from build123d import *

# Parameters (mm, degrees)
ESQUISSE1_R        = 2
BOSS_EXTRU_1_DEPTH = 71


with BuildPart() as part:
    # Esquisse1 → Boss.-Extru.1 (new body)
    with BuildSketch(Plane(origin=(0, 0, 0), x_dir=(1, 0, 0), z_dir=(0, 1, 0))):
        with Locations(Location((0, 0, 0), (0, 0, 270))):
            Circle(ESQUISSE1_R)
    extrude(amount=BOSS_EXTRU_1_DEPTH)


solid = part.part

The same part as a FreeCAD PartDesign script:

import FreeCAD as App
import Part
import Sketcher
Q = App.Units.Quantity

doc = App.newDocument("Part")
body = doc.addObject("PartDesign::Body", "Body")

sketch1 = body.newObject("Sketcher::SketchObject", "Sketch")
sketch1.AttachmentSupport = (doc.getObject("XZ_Plane"), [""])
sketch1.MapMode = "FlatFace"
sketch1.addGeometry(Part.Circle(App.Vector(0, 0, 0), App.Vector(0, 0, 1), 2), False)
sketch1.addConstraint([
    Sketcher.Constraint("Coincident", 0, 3, -1, 1),
    Sketcher.Constraint("Diameter", 0, Q("4 mm")),
])
pad1 = body.newObject("PartDesign::Pad", "Pad")
pad1.Profile = sketch1
pad1.Length = 71
pad1.Reversed = True

doc.recompute()
